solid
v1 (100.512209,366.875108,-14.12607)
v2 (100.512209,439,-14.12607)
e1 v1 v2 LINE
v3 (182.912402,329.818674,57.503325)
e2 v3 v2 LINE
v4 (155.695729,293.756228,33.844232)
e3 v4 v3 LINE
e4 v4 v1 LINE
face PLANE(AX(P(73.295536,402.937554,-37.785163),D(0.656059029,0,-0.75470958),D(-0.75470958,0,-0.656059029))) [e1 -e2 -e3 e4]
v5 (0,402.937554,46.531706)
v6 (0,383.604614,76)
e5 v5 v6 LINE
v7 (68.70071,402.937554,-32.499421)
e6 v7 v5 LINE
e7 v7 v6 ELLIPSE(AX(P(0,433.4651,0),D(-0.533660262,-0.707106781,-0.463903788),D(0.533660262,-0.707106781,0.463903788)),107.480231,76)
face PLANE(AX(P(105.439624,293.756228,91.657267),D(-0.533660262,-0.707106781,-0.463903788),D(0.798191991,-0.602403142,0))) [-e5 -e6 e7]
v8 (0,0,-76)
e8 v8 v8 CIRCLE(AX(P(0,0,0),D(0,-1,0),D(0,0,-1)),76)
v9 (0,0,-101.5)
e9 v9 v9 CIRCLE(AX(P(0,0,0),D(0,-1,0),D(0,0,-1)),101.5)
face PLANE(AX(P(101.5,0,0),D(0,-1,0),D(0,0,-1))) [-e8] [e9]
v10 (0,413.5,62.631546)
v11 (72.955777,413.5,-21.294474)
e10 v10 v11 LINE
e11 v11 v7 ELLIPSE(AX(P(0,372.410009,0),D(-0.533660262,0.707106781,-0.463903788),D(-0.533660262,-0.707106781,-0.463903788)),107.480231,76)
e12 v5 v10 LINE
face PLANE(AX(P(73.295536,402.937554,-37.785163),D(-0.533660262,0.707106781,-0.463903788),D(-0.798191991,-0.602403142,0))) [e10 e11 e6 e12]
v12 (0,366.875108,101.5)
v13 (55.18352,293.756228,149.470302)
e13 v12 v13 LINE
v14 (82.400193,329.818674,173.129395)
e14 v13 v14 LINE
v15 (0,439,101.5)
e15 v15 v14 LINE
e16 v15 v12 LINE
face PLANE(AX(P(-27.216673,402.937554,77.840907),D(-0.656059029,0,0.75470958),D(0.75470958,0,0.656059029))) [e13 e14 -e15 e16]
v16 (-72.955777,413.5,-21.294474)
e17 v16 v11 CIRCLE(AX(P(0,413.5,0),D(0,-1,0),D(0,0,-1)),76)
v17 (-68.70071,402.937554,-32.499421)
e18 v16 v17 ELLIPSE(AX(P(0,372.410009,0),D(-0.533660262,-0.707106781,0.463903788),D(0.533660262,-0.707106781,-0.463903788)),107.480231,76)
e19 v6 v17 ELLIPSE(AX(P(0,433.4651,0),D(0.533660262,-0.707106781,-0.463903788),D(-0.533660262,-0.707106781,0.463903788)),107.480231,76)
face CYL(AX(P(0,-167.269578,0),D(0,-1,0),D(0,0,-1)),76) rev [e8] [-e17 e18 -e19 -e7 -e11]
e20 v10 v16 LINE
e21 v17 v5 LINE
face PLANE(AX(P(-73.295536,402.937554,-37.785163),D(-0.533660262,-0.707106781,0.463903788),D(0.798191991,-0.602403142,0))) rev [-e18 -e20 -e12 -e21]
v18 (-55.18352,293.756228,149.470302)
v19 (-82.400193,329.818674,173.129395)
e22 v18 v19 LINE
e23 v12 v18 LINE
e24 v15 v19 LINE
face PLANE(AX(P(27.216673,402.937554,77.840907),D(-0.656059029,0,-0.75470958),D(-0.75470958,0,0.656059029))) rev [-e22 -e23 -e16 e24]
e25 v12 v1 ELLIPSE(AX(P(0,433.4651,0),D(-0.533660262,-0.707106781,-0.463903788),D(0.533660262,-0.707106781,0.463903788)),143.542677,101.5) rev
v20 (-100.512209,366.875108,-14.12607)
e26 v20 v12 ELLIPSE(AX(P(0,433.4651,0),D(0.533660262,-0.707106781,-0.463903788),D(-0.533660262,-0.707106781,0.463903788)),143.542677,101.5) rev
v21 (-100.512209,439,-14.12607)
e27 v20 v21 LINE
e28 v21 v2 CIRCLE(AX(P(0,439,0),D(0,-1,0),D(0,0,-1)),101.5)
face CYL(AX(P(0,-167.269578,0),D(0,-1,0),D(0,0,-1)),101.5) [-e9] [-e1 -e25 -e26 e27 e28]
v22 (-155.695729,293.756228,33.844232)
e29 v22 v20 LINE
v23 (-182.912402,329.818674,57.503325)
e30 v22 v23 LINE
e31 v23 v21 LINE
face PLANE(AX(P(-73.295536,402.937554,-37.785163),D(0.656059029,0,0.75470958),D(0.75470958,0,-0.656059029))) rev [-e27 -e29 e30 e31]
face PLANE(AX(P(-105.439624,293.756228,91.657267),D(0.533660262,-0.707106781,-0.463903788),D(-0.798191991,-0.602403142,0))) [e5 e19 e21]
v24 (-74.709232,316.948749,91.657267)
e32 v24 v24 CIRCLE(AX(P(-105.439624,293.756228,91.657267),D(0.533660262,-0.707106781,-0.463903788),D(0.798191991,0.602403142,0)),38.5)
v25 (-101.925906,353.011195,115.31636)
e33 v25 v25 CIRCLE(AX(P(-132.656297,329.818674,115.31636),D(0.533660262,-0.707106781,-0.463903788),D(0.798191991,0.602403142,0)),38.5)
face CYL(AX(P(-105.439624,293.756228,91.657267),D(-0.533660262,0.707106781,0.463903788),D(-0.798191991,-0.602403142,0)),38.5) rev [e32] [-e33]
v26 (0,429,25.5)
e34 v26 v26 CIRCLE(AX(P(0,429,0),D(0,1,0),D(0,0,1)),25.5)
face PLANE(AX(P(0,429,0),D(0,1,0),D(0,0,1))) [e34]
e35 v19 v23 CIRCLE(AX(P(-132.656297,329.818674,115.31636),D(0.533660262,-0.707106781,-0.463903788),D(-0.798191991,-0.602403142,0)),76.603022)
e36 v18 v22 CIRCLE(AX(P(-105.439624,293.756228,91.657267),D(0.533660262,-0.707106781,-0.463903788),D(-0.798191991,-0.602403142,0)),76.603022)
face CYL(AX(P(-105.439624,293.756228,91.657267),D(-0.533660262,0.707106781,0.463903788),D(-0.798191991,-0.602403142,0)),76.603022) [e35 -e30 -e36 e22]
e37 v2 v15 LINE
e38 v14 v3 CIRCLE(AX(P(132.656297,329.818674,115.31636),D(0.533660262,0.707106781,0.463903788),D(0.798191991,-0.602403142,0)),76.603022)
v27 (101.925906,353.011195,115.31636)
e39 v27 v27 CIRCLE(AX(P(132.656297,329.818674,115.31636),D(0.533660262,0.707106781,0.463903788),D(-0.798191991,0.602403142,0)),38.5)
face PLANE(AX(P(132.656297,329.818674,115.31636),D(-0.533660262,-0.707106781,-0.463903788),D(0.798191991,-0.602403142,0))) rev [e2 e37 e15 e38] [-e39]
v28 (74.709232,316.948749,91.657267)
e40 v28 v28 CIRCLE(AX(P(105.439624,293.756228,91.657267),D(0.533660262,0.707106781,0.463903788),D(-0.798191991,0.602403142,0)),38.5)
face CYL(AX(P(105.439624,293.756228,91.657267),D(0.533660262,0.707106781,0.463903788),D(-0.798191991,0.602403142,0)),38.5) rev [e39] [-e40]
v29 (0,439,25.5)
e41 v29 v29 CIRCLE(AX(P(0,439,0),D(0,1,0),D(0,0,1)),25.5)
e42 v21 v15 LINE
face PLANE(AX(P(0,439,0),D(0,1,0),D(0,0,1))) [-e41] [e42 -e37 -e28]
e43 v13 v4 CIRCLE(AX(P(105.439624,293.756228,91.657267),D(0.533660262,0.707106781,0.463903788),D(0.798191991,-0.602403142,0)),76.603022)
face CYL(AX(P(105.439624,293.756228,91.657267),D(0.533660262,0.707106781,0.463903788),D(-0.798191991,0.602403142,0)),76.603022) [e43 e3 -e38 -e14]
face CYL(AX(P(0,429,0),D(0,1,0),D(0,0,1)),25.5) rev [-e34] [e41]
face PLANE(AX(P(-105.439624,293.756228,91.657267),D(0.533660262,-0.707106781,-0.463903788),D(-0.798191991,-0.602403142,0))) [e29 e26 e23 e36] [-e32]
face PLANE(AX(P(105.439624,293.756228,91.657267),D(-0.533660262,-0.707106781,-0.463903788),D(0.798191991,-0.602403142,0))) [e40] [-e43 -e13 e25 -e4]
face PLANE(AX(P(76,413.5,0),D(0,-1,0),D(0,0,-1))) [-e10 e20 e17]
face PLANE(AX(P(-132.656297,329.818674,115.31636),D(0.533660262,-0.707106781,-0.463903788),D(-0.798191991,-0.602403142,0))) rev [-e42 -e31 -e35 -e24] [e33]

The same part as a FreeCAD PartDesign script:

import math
import FreeCAD as App
import Part
import Sketcher
Q = App.Units.Quantity


def add_polygon(sketch, points):
    """Adds a closed chain of lines whose ends are joined by coincident constraints."""
    first, n = sketch.GeometryCount, len(points)
    for a, b in zip(points, points[1:] + points[:1]):
        sketch.addGeometry(Part.LineSegment(App.Vector(*a, 0), App.Vector(*b, 0)), False)
    for i in range(n):
        sketch.addConstraint(Sketcher.Constraint("Coincident", first + i, 2, first + (i + 1) % n, 1))

doc = App.newDocument("Part")
body = doc.addObject("PartDesign::Body", "Body")

sketch1 = body.newObject("Sketcher::SketchObject", "Sketch")
sketch1.AttachmentSupport = (doc.getObject("XY_Plane"), [""])
sketch1.MapMode = "FlatFace"
add_polygon(sketch1, [(102, 439), (0, 439), (0, 414), (76, 414), (76, 0), (102, 0)])
sketch1.addConstraint([
    Sketcher.Constraint("Horizontal", 0),
    Sketcher.Constraint("Vertical", 1),
    Sketcher.Constraint("Horizontal", 2),
    Sketcher.Constraint("Vertical", 3),
    Sketcher.Constraint("Horizontal", 4),
    Sketcher.Constraint("Vertical", 5),
    Sketcher.Constraint("PointOnObject", 0, 2, -2),
    Sketcher.Constraint("PointOnObject", 3, 2, -1),
    Sketcher.Constraint("Equal", 4, 1),
    Sketcher.Constraint("DistanceX", 2, 1, 2, 2, Q("76 mm")),
    Sketcher.Constraint("DistanceY", 5, 1, 5, 2, Q("439 mm")),
    Sketcher.Constraint("DistanceX", 0, 2, 0, 1, Q("101.5 mm")),
])
revolution = body.newObject("PartDesign::Revolution", "Revolution")
revolution.Profile = sketch1
revolution.ReferenceAxis = (sketch1, ["V_Axis"])
revolution.Angle = 360

sketch2 = body.newObject("Sketcher::SketchObject", "Sketch001")
sketch2.AttachmentSupport = (doc.getObject("XZ_Plane"), [""])
sketch2.MapMode = "FlatFace"
sketch2.AttachmentOffset = App.Placement(App.Vector(0, 0, -439), App.Rotation())
sketch2.addGeometry(Part.Circle(App.Vector(0, 0, 0), App.Vector(0, 0, 1), 26), False)
sketch2.addConstraint([
    Sketcher.Constraint("Coincident", 0, 3, -1, 1),
    Sketcher.Constraint("Diameter", 0, Q("51 mm")),
])
pocket1 = body.newObject("PartDesign::Pocket", "Pocket")
pocket1.Profile = sketch2
pocket1.Length = 10
pocket1.Reversed = True

sketch3 = body.newObject("Sketcher::SketchObject", "Sketch002")
sketch3.Placement = App.Placement(App.Vector(190.786805, 252.794996, 165.848439), App.Rotation(App.Vector(0.656059029, 0, -0.75470958), App.Vector(-0.533660262, 0.707106781, -0.463903788), App.Vector(0.533660262, 0.707106781, 0.463903788), "ZXY"))
sketch3.addGeometry([
    Part.LineSegment(App.Vector(-77, 263, 0), App.Vector(-77, 109, 0)),
    Part.ArcOfCircle(Part.Circle(App.Vector(0, 109, 0), App.Vector(0, 0, 1), 77), math.radians(180), math.radians(360)),
    Part.LineSegment(App.Vector(77, 109, 0), App.Vector(77, 263, 0)),
    Part.LineSegment(App.Vector(77, 263, 0), App.Vector(-77, 263, 0)),
], False)
sketch3.addConstraint([
    Sketcher.Constraint("Tangent", 0, 2, 1, 1),
    Sketcher.Constraint("Tangent", 1, 2, 2, 1),
    Sketcher.Constraint("Coincident", 2, 2, 3, 1),
    Sketcher.Constraint("Coincident", 3, 2, 0, 1),
    Sketcher.Constraint("Vertical", 0),
    Sketcher.Constraint("Vertical", 2),
    Sketcher.Constraint("Horizontal", 3),
    Sketcher.Constraint("PointOnObject", 1, 3, -2),
    Sketcher.Constraint("Radius", 1, Q("76.603022 mm")),
    Sketcher.Constraint("DistanceY", 0, 2, 0, 1, Q("154.405712 mm")),
    Sketcher.Constraint("DistanceY", -1, 1, 1, 3, Q("108.92793 mm")),
])
pad1 = body.newObject("PartDesign::Pad", "Pad")
pad1.Profile = sketch3
pad1.Length = 51
pad1.Reversed = True

sketch4 = body.newObject("Sketcher::SketchObject", "Sketch003")
sketch4.Placement = App.Placement(App.Vector(190.786805, 252.794996, 165.848439), App.Rotation(App.Vector(0.845698956, -0.44620463, -0.292736576), App.Vector(0, 0.548544827, -0.836121146), App.Vector(0.533660262, 0.707106781, 0.463903788), "ZXY"))
sketch4.addGeometry([
    Part.LineSegment(App.Vector(-9, 133, 0), App.Vector(-107, 253, 0)),
    Part.LineSegment(App.Vector(-107, 253, 0), App.Vector(-226, 156, 0)),
    Part.LineSegment(App.Vector(-226, 156, 0), App.Vector(-128, 36, 0)),
    Part.ArcOfCircle(Part.Circle(App.Vector(-69, 85, 0), App.Vector(0, 0, 1), 77), math.radians(-141), math.radians(39)),
], False)
sketch4.addConstraint([
    Sketcher.Constraint("Coincident", 0, 2, 1, 1),
    Sketcher.Constraint("Coincident", 1, 2, 2, 1),
    Sketcher.Constraint("Tangent", 2, 2, 3, 1),
    Sketcher.Constraint("Tangent", 3, 2, 0, 1),
    Sketcher.Constraint("Perpendicular", 0, 1),
    Sketcher.Constraint("Perpendicular", 1, 2),
    Sketcher.Constraint("Radius", 3, Q("76.603022 mm")),
    Sketcher.Constraint("DistanceX", 0, 2, 3, 3, Q("38.008902 mm")),
    Sketcher.Constraint("DistanceY", 1, 2, 0, 2, Q("96.677402 mm")),
    Sketcher.Constraint("DistanceY", -1, 1, 3, 3, Q("84.50188 mm")),
    Sketcher.Constraint("DistanceX", 2, 2, -1, 1, Q("128.162168 mm")),
])
pocket2 = body.newObject("PartDesign::Pocket", "Pocket001")
pocket2.Profile = sketch4
pocket2.Length = 51
pocket2.Reversed = True

sketch5 = body.newObject("Sketcher::SketchObject", "Sketch004")
sketch5.Placement = App.Placement(App.Vector(190.786805, 252.794996, 165.848439), App.Rotation(App.Vector(0.845698956, -0.44620463, -0.292736576), App.Vector(0, 0.548544827, -0.836121146), App.Vector(0.533660262, 0.707106781, 0.463903788), "ZXY"))
sketch5.addGeometry(Part.Circle(App.Vector(-69, 85, 0), App.Vector(0, 0, 1), 38), False)
sketch5.addConstraint([
    Sketcher.Constraint("Diameter", 0, Q("77 mm")),
    Sketcher.Constraint("DistanceY", -1, 1, 0, 3, Q("84.50188 mm")),
    Sketcher.Constraint("DistanceX", 0, 3, -1, 1, Q("68.736643 mm")),
])
pocket3 = body.newObject("PartDesign::Pocket", "Pocket002")
pocket3.Profile = sketch5
pocket3.Length = 51
doc.recompute()

mirrored = body.newObject("PartDesign::Mirrored", "Mirrored")
mirrored.Originals = [pad1, pocket2, pocket3]
mirrored.MirrorPlane = (doc.getObject("YZ_Plane"), [""])
body.Tip = mirrored

doc.recompute()
